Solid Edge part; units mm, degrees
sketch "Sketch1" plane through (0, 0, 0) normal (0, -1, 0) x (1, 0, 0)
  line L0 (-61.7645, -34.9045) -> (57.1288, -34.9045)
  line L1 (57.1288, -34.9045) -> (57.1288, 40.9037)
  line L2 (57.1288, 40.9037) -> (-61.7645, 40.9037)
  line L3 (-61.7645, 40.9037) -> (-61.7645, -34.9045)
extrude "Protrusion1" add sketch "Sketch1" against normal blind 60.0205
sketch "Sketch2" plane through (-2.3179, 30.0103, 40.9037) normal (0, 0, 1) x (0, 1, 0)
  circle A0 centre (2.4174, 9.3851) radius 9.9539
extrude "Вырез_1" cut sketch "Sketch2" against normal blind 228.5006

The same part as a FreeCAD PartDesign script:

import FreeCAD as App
import Part
import Sketcher
from FreeCAD import Vector
Q = App.Units.Quantity

doc = App.newDocument("Part")
body = doc.addObject("PartDesign::Body", "Body")

# Sketch on XZ plane
sketch1 = doc.addObject("Sketcher::SketchObject", "Sketch")
body.addObject(sketch1)
sketch1.AttachmentSupport = (doc.XZ_Plane, [""])
sketch1.MapMode = "FlatFace"
sketch1.addGeometry([
    Part.LineSegment(Vector(-62, 41, 0), Vector(-62, -35, 0)),
    Part.LineSegment(Vector(-62, -35, 0), Vector(57, -35, 0)),
    Part.LineSegment(Vector(57, -35, 0), Vector(57, 41, 0)),
    Part.LineSegment(Vector(57, 41, 0), Vector(-62, 41, 0)),
], False)
sketch1.addConstraint([
    Sketcher.Constraint("Coincident", 0, 2, 1, 1),
    Sketcher.Constraint("Coincident", 1, 2, 2, 1),
    Sketcher.Constraint("Coincident", 2, 2, 3, 1),
    Sketcher.Constraint("Coincident", 3, 2, 0, 1),
    Sketcher.Constraint("Vertical", 0),
    Sketcher.Constraint("Horizontal", 1),
    Sketcher.Constraint("Vertical", 2),
    Sketcher.Constraint("Horizontal", 3),
    Sketcher.Constraint("DistanceX", 1, 1, 1, 2, 118.8933),
    Sketcher.Constraint("DistanceY", 0, 2, 0, 1, 75.8082),
    Sketcher.Constraint("DistanceY", 0, 2, -1, 1, Q("1.3742 in")),
    Sketcher.Constraint("DistanceX", 0, 2, -1, 1, 61.7645),
])
pad1 = doc.addObject("PartDesign::Pad", "Pad")
body.addObject(pad1)
pad1.Profile = sketch1
pad1.Length = Q("2.3630118 in")
pad1.Reversed = True

# Sketch on XY plane
sketch2 = doc.addObject("Sketcher::SketchObject", "Sketch001")
body.addObject(sketch2)
sketch2.AttachmentSupport = (doc.XY_Plane, [""])
sketch2.MapMode = "FlatFace"
sketch2.AttachmentOffset = App.Placement(Vector(0, 0, 40.9037), App.Rotation())
sketch2.addGeometry(Part.Circle(Vector(-12, 32, 0), Vector(0, 0, 1), 10), False)
sketch2.addConstraint([
    Sketcher.Constraint("Diameter", 0, 19.9078),
    Sketcher.Constraint("DistanceX", 0, 3, -1, 1, 11.703),
    Sketcher.Constraint("DistanceY", -1, 1, 0, 3, 32.4277),
])
pocket1 = doc.addObject("PartDesign::Pocket", "Pocket")
body.addObject(pocket1)
pocket1.Profile = sketch2
pocket1.Length = 228.5006

doc.recompute()
